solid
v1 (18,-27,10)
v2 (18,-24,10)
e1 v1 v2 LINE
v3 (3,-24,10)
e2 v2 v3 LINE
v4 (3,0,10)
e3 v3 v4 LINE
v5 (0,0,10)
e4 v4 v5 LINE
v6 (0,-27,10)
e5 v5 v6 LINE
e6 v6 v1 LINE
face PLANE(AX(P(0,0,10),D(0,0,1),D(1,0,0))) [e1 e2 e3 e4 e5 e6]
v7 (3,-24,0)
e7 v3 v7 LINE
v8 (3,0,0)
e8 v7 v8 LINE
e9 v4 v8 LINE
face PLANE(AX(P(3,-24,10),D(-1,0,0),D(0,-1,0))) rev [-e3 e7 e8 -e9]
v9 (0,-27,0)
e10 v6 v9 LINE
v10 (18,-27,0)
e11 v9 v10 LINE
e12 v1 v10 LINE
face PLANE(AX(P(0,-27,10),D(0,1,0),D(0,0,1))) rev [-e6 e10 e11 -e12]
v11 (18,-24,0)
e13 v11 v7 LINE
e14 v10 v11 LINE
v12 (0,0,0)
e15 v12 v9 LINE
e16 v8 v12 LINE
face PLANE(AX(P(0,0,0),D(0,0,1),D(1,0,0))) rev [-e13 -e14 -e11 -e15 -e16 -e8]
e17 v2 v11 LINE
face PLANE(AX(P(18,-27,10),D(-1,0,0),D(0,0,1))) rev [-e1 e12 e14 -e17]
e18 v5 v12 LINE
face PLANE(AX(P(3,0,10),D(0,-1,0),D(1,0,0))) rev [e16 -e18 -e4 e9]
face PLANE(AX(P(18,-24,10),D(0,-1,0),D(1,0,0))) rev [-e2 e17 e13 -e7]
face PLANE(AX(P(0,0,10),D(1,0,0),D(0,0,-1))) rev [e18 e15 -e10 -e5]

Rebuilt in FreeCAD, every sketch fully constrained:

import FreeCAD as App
import Part
import Sketcher

doc = App.newDocument("Part")
body = doc.addObject("PartDesign::Body", "Body")

# Sketch on XY plane
sketch1 = body.newObject("Sketcher::SketchObject", "Sketch")
sketch1.AttachmentSupport = (doc.getObject("XY_Plane"), [""])
sketch1.MapMode = "FlatFace"
sketch1.addGeometry([
    Part.LineSegment(App.Vector(0, 0, 0), App.Vector(0, -27, 0)),  # 0
    Part.LineSegment(App.Vector(0, -27, 0), App.Vector(18, -27, 0)),  # 1
    Part.LineSegment(App.Vector(18, -27, 0), App.Vector(18, -24, 0)),  # 2
    Part.LineSegment(App.Vector(18, -24, 0), App.Vector(3, -24, 0)),  # 3
    Part.LineSegment(App.Vector(3, -24, 0), App.Vector(3, 0, 0)),  # 4
    Part.LineSegment(App.Vector(3, 0, 0), App.Vector(0, 0, 0)),  # 5
], False)
sketch1.addConstraint([
    Sketcher.Constraint("Coincident", 0, 2, 1, 1),
    Sketcher.Constraint("Coincident", 1, 2, 2, 1),
    Sketcher.Constraint("Coincident", 2, 2, 3, 1),
    Sketcher.Constraint("Coincident", 3, 2, 4, 1),
    Sketcher.Constraint("Coincident", 4, 2, 5, 1),
    Sketcher.Constraint("Coincident", 5, 2, 0, 1),
    Sketcher.Constraint("Vertical", 0),
    Sketcher.Constraint("Horizontal", 1),
    Sketcher.Constraint("Vertical", 2),
    Sketcher.Constraint("Horizontal", 3),
    Sketcher.Constraint("Vertical", 4),
    Sketcher.Constraint("Horizontal", 5),
    Sketcher.Constraint("Coincident", 5, 2, -1, 1),
    Sketcher.Constraint("Equal", 5, 2),
    Sketcher.Constraint("DistanceX", 1, 1, 1, 2, 18.0),
    Sketcher.Constraint("DistanceX", 3, 2, 3, 1, 15.0),
    Sketcher.Constraint("DistanceY", 0, 2, 0, 1, 27.0),
])
pad1 = body.newObject("PartDesign::Pad", "Pad")
pad1.Profile = sketch1
pad1.Length = 10

doc.recompute()
